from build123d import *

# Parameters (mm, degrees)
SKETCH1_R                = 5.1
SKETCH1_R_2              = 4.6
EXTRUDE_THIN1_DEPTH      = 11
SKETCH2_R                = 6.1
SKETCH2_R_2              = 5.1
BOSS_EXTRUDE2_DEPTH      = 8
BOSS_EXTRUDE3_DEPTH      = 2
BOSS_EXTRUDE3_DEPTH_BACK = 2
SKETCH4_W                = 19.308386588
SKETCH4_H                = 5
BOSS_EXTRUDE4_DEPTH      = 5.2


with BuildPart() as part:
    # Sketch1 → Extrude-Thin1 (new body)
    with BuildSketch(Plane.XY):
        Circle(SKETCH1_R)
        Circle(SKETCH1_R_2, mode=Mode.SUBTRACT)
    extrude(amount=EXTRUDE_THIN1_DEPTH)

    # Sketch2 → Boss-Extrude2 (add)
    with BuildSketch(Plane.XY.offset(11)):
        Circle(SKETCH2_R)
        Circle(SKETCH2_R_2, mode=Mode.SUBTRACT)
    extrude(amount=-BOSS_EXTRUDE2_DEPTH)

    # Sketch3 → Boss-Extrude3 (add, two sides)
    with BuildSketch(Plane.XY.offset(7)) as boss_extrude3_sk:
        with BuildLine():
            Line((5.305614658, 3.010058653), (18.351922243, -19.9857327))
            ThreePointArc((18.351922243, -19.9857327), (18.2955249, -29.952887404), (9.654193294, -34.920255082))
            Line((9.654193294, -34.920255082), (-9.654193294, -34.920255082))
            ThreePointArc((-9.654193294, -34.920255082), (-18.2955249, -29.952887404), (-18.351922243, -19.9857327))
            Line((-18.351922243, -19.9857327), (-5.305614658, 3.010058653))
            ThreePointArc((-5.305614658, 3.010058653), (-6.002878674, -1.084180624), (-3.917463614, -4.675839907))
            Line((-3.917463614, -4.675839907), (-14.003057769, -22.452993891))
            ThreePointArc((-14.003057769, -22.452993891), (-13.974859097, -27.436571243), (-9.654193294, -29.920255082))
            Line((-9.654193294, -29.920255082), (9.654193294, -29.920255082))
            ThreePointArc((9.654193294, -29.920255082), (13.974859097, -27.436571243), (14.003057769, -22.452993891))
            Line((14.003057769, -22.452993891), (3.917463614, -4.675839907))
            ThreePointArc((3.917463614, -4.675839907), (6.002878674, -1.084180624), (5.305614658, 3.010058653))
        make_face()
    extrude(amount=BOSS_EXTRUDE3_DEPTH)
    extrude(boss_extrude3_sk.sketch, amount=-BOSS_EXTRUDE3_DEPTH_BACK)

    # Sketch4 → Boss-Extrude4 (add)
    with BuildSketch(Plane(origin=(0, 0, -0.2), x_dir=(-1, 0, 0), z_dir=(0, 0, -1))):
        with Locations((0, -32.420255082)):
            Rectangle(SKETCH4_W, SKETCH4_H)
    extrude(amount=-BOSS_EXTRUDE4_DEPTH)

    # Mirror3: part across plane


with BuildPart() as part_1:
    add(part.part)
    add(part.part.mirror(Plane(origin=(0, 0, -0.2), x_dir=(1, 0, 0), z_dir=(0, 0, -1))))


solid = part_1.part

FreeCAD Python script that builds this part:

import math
import FreeCAD as App
import Part
import Sketcher
from FreeCAD import Vector
Q = App.Units.Quantity


def add_polygon(sketch, points):
    """Adds a closed chain of lines whose ends are joined by coincident constraints."""
    first, n = sketch.GeometryCount, len(points)
    for a, b in zip(points, points[1:] + points[:1]):
        sketch.addGeometry(Part.LineSegment(App.Vector(*a, 0), App.Vector(*b, 0)), False)
    for i in range(n):
        sketch.addConstraint(Sketcher.Constraint("Coincident", first + i, 2, first + (i + 1) % n, 1))

doc = App.newDocument("Part")
body = doc.addObject("PartDesign::Body", "Body")

sketch1 = doc.addObject("Sketcher::SketchObject", "Sketch")
body.addObject(sketch1)
sketch1.AttachmentSupport = (doc.XY_Plane, [""])
sketch1.MapMode = "FlatFace"
sketch1.addGeometry([
    Part.Circle(Vector(0, 0, 0), Vector(0, 0, 1), 5.1),
    Part.Circle(Vector(0, 0, 0), Vector(0, 0, 1), 4.6),
], False)
sketch1.addConstraint([
    Sketcher.Constraint("Coincident", 0, 3, -1, 1),
    Sketcher.Constraint("Coincident", 1, 3, -1, 1),
    Sketcher.Constraint("Diameter", 0, Q("10.2 mm")),
    Sketcher.Constraint("Diameter", 1, Q("9.2 mm")),
])
pad1 = doc.addObject("PartDesign::Pad", "Pad")
body.addObject(pad1)
pad1.Profile = sketch1
pad1.Length = 11

sketch2 = doc.addObject("Sketcher::SketchObject", "Sketch001")
body.addObject(sketch2)
sketch2.AttachmentSupport = (doc.XY_Plane, [""])
sketch2.MapMode = "FlatFace"
sketch2.AttachmentOffset = App.Placement(Vector(0, 0, 11), App.Rotation())
sketch2.addGeometry([
    Part.Circle(Vector(0, 0, 0), Vector(0, 0, 1), 6),
    Part.Circle(Vector(0, 0, 0), Vector(0, 0, 1), 5),
], False)
sketch2.addConstraint([
    Sketcher.Constraint("Coincident", 0, 3, -1, 1),
    Sketcher.Constraint("Coincident", 1, 3, -1, 1),
    Sketcher.Constraint("Diameter", 0, Q("12.2 mm")),
    Sketcher.Constraint("Diameter", 1, Q("10.2 mm")),
])
pad2 = doc.addObject("PartDesign::Pad", "Pad001")
body.addObject(pad2)
pad2.Profile = sketch2
pad2.Length = 8
pad2.Reversed = True

sketch3 = doc.addObject("Sketcher::SketchObject", "Sketch002")
body.addObject(sketch3)
sketch3.AttachmentSupport = (doc.XY_Plane, [""])
sketch3.MapMode = "FlatFace"
sketch3.AttachmentOffset = App.Placement(Vector(0, 0, 7), App.Rotation())
sketch3.addGeometry([
    Part.LineSegment(Vector(18, -20, 0), Vector(5, 3, 0)),
    Part.ArcOfCircle(Part.Circle(Vector(0, 0, 0), Vector(0, 0, 1), 6), math.radians(-50), math.radians(30)),
    Part.LineSegment(Vector(4, -5, 0), Vector(14, -22, 0)),
    Part.ArcOfCircle(Part.Circle(Vector(10, -25, 0), Vector(0, 0, 1), 5), math.radians(-90), math.radians(30)),
    Part.LineSegment(Vector(10, -30, 0), Vector(-10, -30, 0)),
    Part.ArcOfCircle(Part.Circle(Vector(-10, -25, 0), Vector(0, 0, 1), 5), math.radians(150), math.radians(270)),
    Part.LineSegment(Vector(-14, -22, 0), Vector(-4, -5, 0)),
    Part.ArcOfCircle(Part.Circle(Vector(0, 0, 0), Vector(0, 0, 1), 6), math.radians(150), math.radians(230)),
    Part.LineSegment(Vector(-5, 3, 0), Vector(-18, -20, 0)),
    Part.ArcOfCircle(Part.Circle(Vector(-10, -25, 0), Vector(0, 0, 1), 10), math.radians(150), math.radians(270)),
    Part.LineSegment(Vector(-10, -35, 0), Vector(10, -35, 0)),
    Part.ArcOfCircle(Part.Circle(Vector(10, -25, 0), Vector(0, 0, 1), 10), math.radians(-90), math.radians(30)),
], False)
sketch3.addConstraint([
    Sketcher.Constraint("Tangent", 0, 2, 1, 2),
    Sketcher.Constraint("Coincident", 1, 1, 2, 1),
    Sketcher.Constraint("Tangent", 2, 2, 3, 2),
    Sketcher.Constraint("Tangent", 3, 1, 4, 1),
    Sketcher.Constraint("Tangent", 4, 2, 5, 2),
    Sketcher.Constraint("Tangent", 5, 1, 6, 1),
    Sketcher.Constraint("Coincident", 6, 2, 7, 2),
    Sketcher.Constraint("Tangent", 7, 1, 8, 1),
    Sketcher.Constraint("Tangent", 8, 2, 9, 1),
    Sketcher.Constraint("Tangent", 9, 2, 10, 1),
    Sketcher.Constraint("Tangent", 10, 2, 11, 1),
    Sketcher.Constraint("Tangent", 11, 2, 0, 1),
    Sketcher.Constraint("Horizontal", 4),
    Sketcher.Constraint("Horizontal", 10),
    Sketcher.Constraint("Coincident", 1, 3, -1, 1),
    Sketcher.Constraint("Coincident", 7, 3, -1, 1),
    Sketcher.Constraint("Coincident", 9, 3, 5, 3),
    Sketcher.Constraint("Coincident", 11, 3, 3, 3),
    Sketcher.Constraint("Equal", 3, 5),
    Sketcher.Constraint("Equal", 1, 7),
    Sketcher.Constraint("Symmetric", 2, 2, 5, 1, -2),
    Sketcher.Constraint("Parallel", 0, 2),
    Sketcher.Constraint("Radius", 3, Q("5 mm")),
    Sketcher.Constraint("Radius", 9, Q("10 mm")),
    Sketcher.Constraint("Radius", 1, Q("6.1 mm")),
    Sketcher.Constraint("DistanceY", 1, 1, 0, 2, Q("7.685899 mm")),
    Sketcher.Constraint("DistanceX", 4, 2, 4, 1, Q("19.308387 mm")),
])
pad3 = doc.addObject("PartDesign::Pad", "Pad002")
body.addObject(pad3)
pad3.Profile = sketch3
pad3.Type = "TwoLengths"
pad3.Length = 2
pad3.Length2 = 2

sketch4 = doc.addObject("Sketcher::SketchObject", "Sketch003")
body.addObject(sketch4)
sketch4.AttachmentSupport = (doc.XY_Plane, [""])
sketch4.MapMode = "FlatFace"
sketch4.AttachmentOffset = App.Placement(Vector(0, 0, -0.2), App.Rotation())
add_polygon(sketch4, [(9.7, -29.9), (9.7, -34.9), (-9.7, -34.9), (-9.7, -29.9)])
sketch4.addConstraint([
    Sketcher.Constraint("Vertical", 0),
    Sketcher.Constraint("Horizontal", 1),
    Sketcher.Constraint("Vertical", 2),
    Sketcher.Constraint("Horizontal", 3),
    Sketcher.Constraint("DistanceY", 0, 2, 0, 1, Q("5 mm")),
    Sketcher.Constraint("DistanceX", 1, 2, 1, 1, Q("19.308387 mm")),
    Sketcher.Constraint("DistanceX", -1, 1, 0, 2, Q("9.654193 mm")),
    Sketcher.Constraint("DistanceY", 0, 2, -1, 1, Q("34.920255 mm")),
])
pad4 = doc.addObject("PartDesign::Pad", "Pad003")
body.addObject(pad4)
pad4.Profile = sketch4
pad4.Length = 5.2
body2 = doc.addObject("PartDesign::Body", "Body001")
doc.recompute()

body2.BaseFeature = body
doc.recompute()

mirroring = doc.addObject("Part::Mirroring", "Mirroring")
mirroring.Source = body
mirroring.Base = Vector(0, 0, -0.2)
mirroring.Normal = Vector(0, 0, -1)
body3 = doc.addObject("PartDesign::Body", "Body002")
body3.BaseFeature = mirroring
boolean = doc.addObject("PartDesign::Boolean", "Boolean")
body2.addObject(boolean)
boolean.Type = "Fuse"
boolean.addObjects([body3])
doc.recompute()
mirroring.Visibility = False

doc.recompute()
